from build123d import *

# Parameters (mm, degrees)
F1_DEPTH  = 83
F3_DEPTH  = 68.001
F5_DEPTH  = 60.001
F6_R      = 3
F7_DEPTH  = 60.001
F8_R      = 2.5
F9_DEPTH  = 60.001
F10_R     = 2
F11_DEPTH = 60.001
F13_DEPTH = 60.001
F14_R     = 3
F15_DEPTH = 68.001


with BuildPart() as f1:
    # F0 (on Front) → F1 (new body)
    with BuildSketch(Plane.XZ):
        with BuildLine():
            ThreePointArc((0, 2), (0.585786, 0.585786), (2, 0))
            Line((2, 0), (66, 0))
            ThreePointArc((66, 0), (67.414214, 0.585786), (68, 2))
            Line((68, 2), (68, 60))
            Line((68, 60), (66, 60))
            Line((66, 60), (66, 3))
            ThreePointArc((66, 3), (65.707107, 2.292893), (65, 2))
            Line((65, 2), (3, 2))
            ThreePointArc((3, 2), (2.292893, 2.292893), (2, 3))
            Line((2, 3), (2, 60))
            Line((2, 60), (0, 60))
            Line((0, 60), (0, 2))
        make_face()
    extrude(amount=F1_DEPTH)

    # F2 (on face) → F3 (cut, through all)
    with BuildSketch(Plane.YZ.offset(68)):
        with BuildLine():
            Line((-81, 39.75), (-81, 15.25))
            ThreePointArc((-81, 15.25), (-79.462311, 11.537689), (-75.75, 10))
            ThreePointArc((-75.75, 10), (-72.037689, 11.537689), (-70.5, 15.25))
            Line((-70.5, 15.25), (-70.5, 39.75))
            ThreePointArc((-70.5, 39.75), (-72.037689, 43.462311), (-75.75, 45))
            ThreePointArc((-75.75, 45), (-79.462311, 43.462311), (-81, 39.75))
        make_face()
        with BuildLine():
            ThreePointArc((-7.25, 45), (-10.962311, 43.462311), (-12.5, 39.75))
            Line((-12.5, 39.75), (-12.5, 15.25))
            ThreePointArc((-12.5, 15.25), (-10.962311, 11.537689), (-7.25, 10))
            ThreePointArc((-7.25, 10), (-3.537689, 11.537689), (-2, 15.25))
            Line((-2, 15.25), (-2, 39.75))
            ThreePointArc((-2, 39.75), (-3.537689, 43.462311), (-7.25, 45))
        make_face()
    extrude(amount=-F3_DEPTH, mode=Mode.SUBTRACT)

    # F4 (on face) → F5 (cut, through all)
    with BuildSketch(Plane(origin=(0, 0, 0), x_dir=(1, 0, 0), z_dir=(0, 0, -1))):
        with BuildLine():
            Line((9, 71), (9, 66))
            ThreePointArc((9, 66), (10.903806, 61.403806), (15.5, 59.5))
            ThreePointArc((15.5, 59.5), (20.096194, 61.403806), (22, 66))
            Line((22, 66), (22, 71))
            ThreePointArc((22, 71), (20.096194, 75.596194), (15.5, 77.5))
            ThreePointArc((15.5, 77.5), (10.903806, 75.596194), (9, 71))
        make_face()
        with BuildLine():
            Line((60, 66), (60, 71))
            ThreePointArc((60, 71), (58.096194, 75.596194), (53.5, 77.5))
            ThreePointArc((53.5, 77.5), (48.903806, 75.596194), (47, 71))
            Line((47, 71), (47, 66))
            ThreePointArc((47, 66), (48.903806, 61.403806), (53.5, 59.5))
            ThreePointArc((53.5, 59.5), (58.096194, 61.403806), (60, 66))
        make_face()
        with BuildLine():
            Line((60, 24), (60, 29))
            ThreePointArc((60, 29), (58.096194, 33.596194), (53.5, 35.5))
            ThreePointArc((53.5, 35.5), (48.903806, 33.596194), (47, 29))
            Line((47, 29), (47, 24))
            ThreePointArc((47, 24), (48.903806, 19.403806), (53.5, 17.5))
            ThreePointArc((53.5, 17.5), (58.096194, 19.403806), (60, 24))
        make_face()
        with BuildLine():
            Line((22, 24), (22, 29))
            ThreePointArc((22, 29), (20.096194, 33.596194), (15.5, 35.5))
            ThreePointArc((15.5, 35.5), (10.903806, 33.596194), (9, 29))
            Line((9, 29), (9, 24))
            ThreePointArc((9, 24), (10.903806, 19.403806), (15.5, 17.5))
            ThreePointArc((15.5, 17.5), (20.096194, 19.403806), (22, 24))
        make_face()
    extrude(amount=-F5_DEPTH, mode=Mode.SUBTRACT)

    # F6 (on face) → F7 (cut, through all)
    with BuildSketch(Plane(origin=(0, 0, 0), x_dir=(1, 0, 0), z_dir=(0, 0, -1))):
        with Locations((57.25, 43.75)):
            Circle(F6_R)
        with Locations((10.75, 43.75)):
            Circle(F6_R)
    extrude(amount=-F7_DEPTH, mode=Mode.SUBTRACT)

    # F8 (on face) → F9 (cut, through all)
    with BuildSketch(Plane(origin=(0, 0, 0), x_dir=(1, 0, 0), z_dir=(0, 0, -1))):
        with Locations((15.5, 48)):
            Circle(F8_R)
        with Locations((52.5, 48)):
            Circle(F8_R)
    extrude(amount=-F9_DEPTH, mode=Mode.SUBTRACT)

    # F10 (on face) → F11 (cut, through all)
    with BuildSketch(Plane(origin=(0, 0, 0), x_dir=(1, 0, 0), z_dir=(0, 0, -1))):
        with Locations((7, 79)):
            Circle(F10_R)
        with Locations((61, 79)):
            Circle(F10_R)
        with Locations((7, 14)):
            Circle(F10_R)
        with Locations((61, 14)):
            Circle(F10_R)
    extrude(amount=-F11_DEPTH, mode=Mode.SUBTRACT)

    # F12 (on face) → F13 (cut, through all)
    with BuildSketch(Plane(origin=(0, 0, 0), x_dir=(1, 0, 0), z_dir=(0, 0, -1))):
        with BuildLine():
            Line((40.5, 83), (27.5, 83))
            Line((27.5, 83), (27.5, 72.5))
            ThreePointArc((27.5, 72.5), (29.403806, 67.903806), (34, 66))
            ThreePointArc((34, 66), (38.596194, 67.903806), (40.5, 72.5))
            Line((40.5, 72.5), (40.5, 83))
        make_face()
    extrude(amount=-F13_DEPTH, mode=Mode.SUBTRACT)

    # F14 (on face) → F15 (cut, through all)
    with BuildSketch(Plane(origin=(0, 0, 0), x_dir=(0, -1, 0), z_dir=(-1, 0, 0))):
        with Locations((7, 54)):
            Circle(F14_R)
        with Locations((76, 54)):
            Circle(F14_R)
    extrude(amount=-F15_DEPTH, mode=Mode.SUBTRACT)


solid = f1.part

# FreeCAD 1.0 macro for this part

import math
import FreeCAD as App
import Part
import Sketcher
from FreeCAD import Vector

doc = App.newDocument("Part")
body = doc.addObject("PartDesign::Body", "Body")

sketch1 = body.newObject("Sketcher::SketchObject", "Sketch")
sketch1.AttachmentSupport = (doc.getObject("XZ_Plane"), [""])
sketch1.MapMode = "FlatFace"
sketch1.addGeometry([
    Part.ArcOfCircle(Part.Circle(Vector(2, 2, 0), Vector(0, 0, 1), 2), math.radians(180), math.radians(270)),
    Part.LineSegment(Vector(2, 0, 0), Vector(66, 0, 0)),
    Part.ArcOfCircle(Part.Circle(Vector(66, 2, 0), Vector(0, 0, 1), 2), math.radians(-90), math.radians(0)),
    Part.LineSegment(Vector(68, 2, 0), Vector(68, 60, 0)),
    Part.LineSegment(Vector(68, 60, 0), Vector(66, 60, 0)),
    Part.LineSegment(Vector(66, 60, 0), Vector(66, 3, 0)),
    Part.ArcOfCircle(Part.Circle(Vector(65, 3, 0), Vector(0, 0, 1), 1), math.radians(-90), math.radians(0)),
    Part.LineSegment(Vector(65, 2, 0), Vector(3, 2, 0)),
    Part.ArcOfCircle(Part.Circle(Vector(3, 3, 0), Vector(0, 0, 1), 1), math.radians(180), math.radians(270)),
    Part.LineSegment(Vector(2, 3, 0), Vector(2, 60, 0)),
    Part.LineSegment(Vector(2, 60, 0), Vector(0, 60, 0)),
    Part.LineSegment(Vector(0, 60, 0), Vector(0, 2, 0)),
], False)
sketch1.addConstraint([
    Sketcher.Constraint("Tangent", 0, 2, 1, 1),
    Sketcher.Constraint("Tangent", 1, 2, 2, 1),
    Sketcher.Constraint("Tangent", 2, 2, 3, 1),
    Sketcher.Constraint("Coincident", 3, 2, 4, 1),
    Sketcher.Constraint("Coincident", 4, 2, 5, 1),
    Sketcher.Constraint("Tangent", 5, 2, 6, 2),
    Sketcher.Constraint("Tangent", 6, 1, 7, 1),
    Sketcher.Constraint("Tangent", 7, 2, 8, 2),
    Sketcher.Constraint("Tangent", 8, 1, 9, 1),
    Sketcher.Constraint("Coincident", 9, 2, 10, 1),
    Sketcher.Constraint("Coincident", 10, 2, 11, 1),
    Sketcher.Constraint("Tangent", 11, 2, 0, 1),
    Sketcher.Constraint("Horizontal", 1),
    Sketcher.Constraint("Vertical", 3),
    Sketcher.Constraint("Horizontal", 4),
    Sketcher.Constraint("Vertical", 5),
    Sketcher.Constraint("Horizontal", 7),
    Sketcher.Constraint("Vertical", 9),
    Sketcher.Constraint("Horizontal", 10),
    Sketcher.Constraint("Vertical", 11),
    Sketcher.Constraint("Equal", 0, 2),
    Sketcher.Constraint("Equal", 6, 8),
    Sketcher.Constraint("PointOnObject", 0, 2, -1),
    Sketcher.Constraint("PointOnObject", 10, 2, -2),
    Sketcher.Constraint("Horizontal", 2, 2, 6, 1),
    Sketcher.Constraint("Horizontal", 4, 2, 9, 2),
    Sketcher.Constraint("Vertical", 1, 2, 4, 2),
    Sketcher.Constraint("Vertical", 0, 2, 8, 1),
    Sketcher.Constraint("Radius", 0, 1.999999),
    Sketcher.Constraint("Radius", 6, 0.999999),
    Sketcher.Constraint("DistanceX", 1, 1, 1, 2, 64.0),
    Sketcher.Constraint("DistanceY", 3, 1, 3, 2, 58.0),
])
pad1 = body.newObject("PartDesign::Pad", "Pad")
pad1.Profile = sketch1
pad1.Length = 83

sketch2 = body.newObject("Sketcher::SketchObject", "Sketch001")
sketch2.AttachmentSupport = (doc.getObject("YZ_Plane"), [""])
sketch2.MapMode = "FlatFace"
sketch2.AttachmentOffset = App.Placement(Vector(0, 0, 68), App.Rotation())
sketch2.addGeometry([
    Part.LineSegment(Vector(-81, 40, 0), Vector(-81, 15, 0)),
    Part.ArcOfCircle(Part.Circle(Vector(-76, 15, 0), Vector(0, 0, 1), 5), math.radians(180), math.radians(270)),
    Part.ArcOfCircle(Part.Circle(Vector(-76, 15, 0), Vector(0, 0, 1), 5), math.radians(-90), math.radians(0)),
    Part.LineSegment(Vector(-70, 15, 0), Vector(-70, 40, 0)),
    Part.ArcOfCircle(Part.Circle(Vector(-76, 40, 0), Vector(0, 0, 1), 5), math.radians(0), math.radians(90)),
    Part.ArcOfCircle(Part.Circle(Vector(-76, 40, 0), Vector(0, 0, 1), 5), math.radians(90), math.radians(180)),
    Part.ArcOfCircle(Part.Circle(Vector(-7, 40, 0), Vector(0, 0, 1), 5), math.radians(90), math.radians(180)),
    Part.LineSegment(Vector(-12, 40, 0), Vector(-12, 15, 0)),
    Part.ArcOfCircle(Part.Circle(Vector(-7, 15, 0), Vector(0, 0, 1), 5), math.radians(180), math.radians(270)),
    Part.ArcOfCircle(Part.Circle(Vector(-7, 15, 0), Vector(0, 0, 1), 5), math.radians(-90), math.radians(0)),
    Part.LineSegment(Vector(-2, 15, 0), Vector(-2, 40, 0)),
    Part.ArcOfCircle(Part.Circle(Vector(-7, 40, 0), Vector(0, 0, 1), 5), math.radians(0), math.radians(90)),
], False)
sketch2.addConstraint([
    Sketcher.Constraint("Tangent", 0, 2, 1, 1),
    Sketcher.Constraint("Tangent", 1, 2, 2, 1),
    Sketcher.Constraint("Tangent", 2, 2, 3, 1),
    Sketcher.Constraint("Tangent", 3, 2, 4, 1),
    Sketcher.Constraint("Tangent", 4, 2, 5, 1),
    Sketcher.Constraint("Tangent", 5, 2, 0, 1),
    Sketcher.Constraint("Tangent", 6, 2, 7, 1),
    Sketcher.Constraint("Tangent", 7, 2, 8, 1),
    Sketcher.Constraint("Tangent", 8, 2, 9, 1),
    Sketcher.Constraint("Tangent", 9, 2, 10, 1),
    Sketcher.Constraint("Tangent", 10, 2, 11, 1),
    Sketcher.Constraint("Tangent", 11, 2, 6, 1),
    Sketcher.Constraint("Vertical", 0),
    Sketcher.Constraint("Vertical", 3),
    Sketcher.Constraint("Vertical", 7),
    Sketcher.Constraint("Vertical", 10),
    Sketcher.Constraint("Equal", 1, 2),
    Sketcher.Constraint("Equal", 2, 4),
    Sketcher.Constraint("Equal", 5, 6),
    Sketcher.Constraint("Equal", 6, 8),
    Sketcher.Constraint("Equal", 8, 9),
    Sketcher.Constraint("Horizontal", 5, 3, 6, 3),
    Sketcher.Constraint("Horizontal", 2, 3, 8, 3),
    Sketcher.Constraint("Vertical", 5, 3, 1, 2),
    Sketcher.Constraint("Vertical", 1, 2, 4, 2),
    Sketcher.Constraint("Vertical", 11, 3, 8, 2),
    Sketcher.Constraint("Vertical", 8, 2, 11, 2),
    Sketcher.Constraint("Radius", 1, 5.249999),
    Sketcher.Constraint("DistanceY", 0, 2, 0, 1, 24.5),
    Sketcher.Constraint("DistanceX", 0, 2, -1, 1, 81.0),
    Sketcher.Constraint("DistanceY", -1, 1, 1, 2, 10.0),
    Sketcher.Constraint("DistanceX", 9, 2, -1, 1, 2.0),
])
pocket1 = body.newObject("PartDesign::Pocket", "Pocket")
pocket1.Profile = sketch2
pocket1.Type = "ThroughAll"

sketch3 = body.newObject("Sketcher::SketchObject", "Sketch002")
sketch3.AttachmentSupport = (doc.getObject("XY_Plane"), [""])
sketch3.MapMode = "FlatFace"
sketch3.addGeometry([
    Part.LineSegment(Vector(9, -71, 0), Vector(9, -66, 0)),
    Part.ArcOfCircle(Part.Circle(Vector(16, -66, 0), Vector(0, 0, 1), 7), math.radians(90), math.radians(180)),
    Part.ArcOfCircle(Part.Circle(Vector(15, -66, 0), Vector(0, 0, 1), 7), math.radians(0), math.radians(90)),
    Part.LineSegment(Vector(22, -66, 0), Vector(22, -71, 0)),
    Part.ArcOfCircle(Part.Circle(Vector(15, -71, 0), Vector(0, 0, 1), 7), math.radians(-90), math.radians(0)),
    Part.ArcOfCircle(Part.Circle(Vector(16, -71, 0), Vector(0, 0, 1), 7), math.radians(-180), math.radians(-90)),
    Part.LineSegment(Vector(60, -66, 0), Vector(60, -71, 0)),
    Part.ArcOfCircle(Part.Circle(Vector(53, -71, 0), Vector(0, 0, 1), 7), math.radians(-90), math.radians(0)),
    Part.ArcOfCircle(Part.Circle(Vector(54, -71, 0), Vector(0, 0, 1), 7), math.radians(-180), math.radians(-90)),
    Part.LineSegment(Vector(47, -71, 0), Vector(47, -66, 0)),
    Part.ArcOfCircle(Part.Circle(Vector(54, -66, 0), Vector(0, 0, 1), 7), math.radians(90), math.radians(180)),
    Part.ArcOfCircle(Part.Circle(Vector(53, -66, 0), Vector(0, 0, 1), 7), math.radians(0), math.radians(90)),
    Part.LineSegment(Vector(60, -24, 0), Vector(60, -29, 0)),
    Part.ArcOfCircle(Part.Circle(Vector(53, -29, 0), Vector(0, 0, 1), 7), math.radians(-90), math.radians(0)),
    Part.ArcOfCircle(Part.Circle(Vector(54, -29, 0), Vector(0, 0, 1), 7), math.radians(-180), math.radians(-90)),
    Part.LineSegment(Vector(47, -29, 0), Vector(47, -24, 0)),
    Part.ArcOfCircle(Part.Circle(Vector(54, -24, 0), Vector(0, 0, 1), 7), math.radians(90), math.radians(180)),
    Part.ArcOfCircle(Part.Circle(Vector(53, -24, 0), Vector(0, 0, 1), 7), math.radians(0), math.radians(90)),
    Part.LineSegment(Vector(22, -24, 0), Vector(22, -29, 0)),
    Part.ArcOfCircle(Part.Circle(Vector(15, -29, 0), Vector(0, 0, 1), 7), math.radians(-90), math.radians(0)),
    Part.ArcOfCircle(Part.Circle(Vector(16, -29, 0), Vector(0, 0, 1), 7), math.radians(-180), math.radians(-90)),
    Part.LineSegment(Vector(9, -29, 0), Vector(9, -24, 0)),
    Part.ArcOfCircle(Part.Circle(Vector(16, -24, 0), Vector(0, 0, 1), 7), math.radians(90), math.radians(180)),
    Part.ArcOfCircle(Part.Circle(Vector(15, -24, 0), Vector(0, 0, 1), 7), math.radians(0), math.radians(90)),
], False)
sketch3.addConstraint([
    Sketcher.Constraint("Tangent", 0, 2, 1, 2),
    Sketcher.Constraint("Tangent", 1, 1, 2, 2),
    Sketcher.Constraint("Tangent", 2, 1, 3, 1),
    Sketcher.Constraint("Tangent", 3, 2, 4, 2),
    Sketcher.Constraint("Tangent", 4, 1, 5, 2),
    Sketcher.Constraint("Tangent", 5, 1, 0, 1),
    Sketcher.Constraint("Tangent", 6, 2, 7, 2),
    Sketcher.Constraint("Tangent", 7, 1, 8, 2),
    Sketcher.Constraint("Tangent", 8, 1, 9, 1),
    Sketcher.Constraint("Tangent", 9, 2, 10, 2),
    Sketcher.Constraint("Tangent", 10, 1, 11, 2),
    Sketcher.Constraint("Tangent", 11, 1, 6, 1),
    Sketcher.Constraint("Tangent", 12, 2, 13, 2),
    Sketcher.Constraint("Tangent", 13, 1, 14, 2),
    Sketcher.Constraint("Tangent", 14, 1, 15, 1),
    Sketcher.Constraint("Tangent", 15, 2, 16, 2),
    Sketcher.Constraint("Tangent", 16, 1, 17, 2),
    Sketcher.Constraint("Tangent", 17, 1, 12, 1),
    Sketcher.Constraint("Tangent", 18, 2, 19, 2),
    Sketcher.Constraint("Tangent", 19, 1, 20, 2),
    Sketcher.Constraint("Tangent", 20, 1, 21, 1),
    Sketcher.Constraint("Tangent", 21, 2, 22, 2),
    Sketcher.Constraint("Tangent", 22, 1, 23, 2),
    Sketcher.Constraint("Tangent", 23, 1, 18, 1),
    Sketcher.Constraint("Vertical", 0),
    Sketcher.Constraint("Vertical", 3),
    Sketcher.Constraint("Vertical", 6),
    Sketcher.Constraint("Vertical", 9),
    Sketcher.Constraint("Vertical", 12),
    Sketcher.Constraint("Vertical", 15),
    Sketcher.Constraint("Vertical", 18),
    Sketcher.Constraint("Vertical", 21),
    Sketcher.Constraint("Equal", 1, 2),
    Sketcher.Constraint("Equal", 2, 4),
    Sketcher.Constraint("Equal", 5, 7),
    Sketcher.Constraint("Equal", 7, 8),
    Sketcher.Constraint("Equal", 8, 10),
    Sketcher.Constraint("Equal", 11, 13),
    Sketcher.Constraint("Equal", 13, 14),
    Sketcher.Constraint("Equal", 14, 16),
    Sketcher.Constraint("Equal", 17, 19),
    Sketcher.Constraint("Equal", 19, 20),
    Sketcher.Constraint("Equal", 20, 22),
    Sketcher.Constraint("Horizontal", 5, 3, 7, 3),
    Sketcher.Constraint("Horizontal", 2, 3, 10, 3),
    Sketcher.Constraint("Horizontal", 14, 3, 19, 3),
    Sketcher.Constraint("Horizontal", 17, 3, 22, 3),
    Sketcher.Constraint("Vertical", 11, 3, 13, 3),
    Sketcher.Constraint("Vertical", 5, 3, 19, 3),
    Sketcher.Constraint("Vertical", 23, 3, 1, 1),
    Sketcher.Constraint("Vertical", 1, 1, 4, 1),
    Sketcher.Constraint("Vertical", 17, 3, 7, 1),
    Sketcher.Constraint("Vertical", 7, 1, 10, 1),
    Sketcher.Constraint("Vertical", 10, 1, 13, 1),
    Sketcher.Constraint("Vertical", 13, 1, 16, 1),
    Sketcher.Constraint("Vertical", 4, 1, 19, 1),
    Sketcher.Constraint("Vertical", 19, 1, 22, 1),
    Sketcher.Constraint("Equal", 9, 12),
    Sketcher.Constraint("Radius", 1, 6.5),
    Sketcher.Constraint("DistanceY", 0, 1, 0, 2, 5.0),
    Sketcher.Constraint("DistanceY", 1, 3, -1, 1, 66.0),
    Sketcher.Constraint("DistanceY", 13, 3, -1, 1, 29.0),
    Sketcher.Constraint("DistanceX", -1, 1, 0, 2, 9.0),
    Sketcher.Constraint("DistanceX", -1, 1, 6, 2, 60.0),
])
pocket2 = body.newObject("PartDesign::Pocket", "Pocket001")
pocket2.Profile = sketch3
pocket2.Type = "ThroughAll"
pocket2.Reversed = True

sketch4 = body.newObject("Sketcher::SketchObject", "Sketch003")
sketch4.AttachmentSupport = (doc.getObject("XY_Plane"), [""])
sketch4.MapMode = "FlatFace"
sketch4.addGeometry([
    Part.Circle(Vector(57.2, -43.8, 0), Vector(0, 0, 1), 3),
    Part.Circle(Vector(10.8, -43.8, 0), Vector(0, 0, 1), 3),
], False)
sketch4.addConstraint([
    Sketcher.Constraint("Equal", 0, 1),
    Sketcher.Constraint("Horizontal", 0, 3, 1, 3),
    Sketcher.Constraint("Diameter", 0, 6.0),
    Sketcher.Constraint("DistanceX", 1, 3, 0, 3, 46.5),
    Sketcher.Constraint("DistanceX", -1, 1, 0, 3, 57.25),
    Sketcher.Constraint("DistanceY", 0, 3, -1, 1, 43.75),
])
pocket3 = body.newObject("PartDesign::Pocket", "Pocket002")
pocket3.Profile = sketch4
pocket3.Type = "ThroughAll"
pocket3.Reversed = True

sketch5 = body.newObject("Sketcher::SketchObject", "Sketch004")
sketch5.AttachmentSupport = (doc.getObject("XY_Plane"), [""])
sketch5.MapMode = "FlatFace"
sketch5.addGeometry([
    Part.Circle(Vector(15.5, -48, 0), Vector(0, 0, 1), 2.5),
    Part.Circle(Vector(52.5, -48, 0), Vector(0, 0, 1), 2.5),
], False)
sketch5.addConstraint([
    Sketcher.Constraint("Equal", 0, 1),
    Sketcher.Constraint("Horizontal", 0, 3, 1, 3),
    Sketcher.Constraint("Diameter", 0, 5.0),
    Sketcher.Constraint("DistanceY", 0, 3, -1, 1, 48.0),
    Sketcher.Constraint("DistanceX", 0, 3, 1, 3, 37.0),
    Sketcher.Constraint("DistanceX", -1, 1, 0, 3, 15.5),
])
pocket4 = body.newObject("PartDesign::Pocket", "Pocket003")
pocket4.Profile = sketch5
pocket4.Type = "ThroughAll"
pocket4.Reversed = True

sketch6 = body.newObject("Sketcher::SketchObject", "Sketch005")
sketch6.AttachmentSupport = (doc.getObject("XY_Plane"), [""])
sketch6.MapMode = "FlatFace"
sketch6.addGeometry([
    Part.Circle(Vector(7, -79, 0), Vector(0, 0, 1), 2),
    Part.Circle(Vector(61, -79, 0), Vector(0, 0, 1), 2),
    Part.Circle(Vector(7, -14, 0), Vector(0, 0, 1), 2),
    Part.Circle(Vector(61, -14, 0), Vector(0, 0, 1), 2),
], False)
sketch6.addConstraint([
    Sketcher.Constraint("Equal", 0, 1),
    Sketcher.Constraint("Equal", 1, 2),
    Sketcher.Constraint("Equal", 2, 3),
    Sketcher.Constraint("Horizontal", 0, 3, 1, 3),
    Sketcher.Constraint("Horizontal", 2, 3, 3, 3),
    Sketcher.Constraint("Vertical", 0, 3, 2, 3),
    Sketcher.Constraint("Vertical", 1, 3, 3, 3),
    Sketcher.Constraint("Diameter", 0, 4.0),
    Sketcher.Constraint("DistanceX", -1, 1, 0, 3, 7.0),
    Sketcher.Constraint("DistanceY", 0, 3, -1, 1, 79.0),
    Sketcher.Constraint("DistanceX", -1, 1, 1, 3, 61.0),
    Sketcher.Constraint("DistanceY", 2, 3, -1, 1, 14.0),
])
pocket5 = body.newObject("PartDesign::Pocket", "Pocket004")
pocket5.Profile = sketch6
pocket5.Type = "ThroughAll"
pocket5.Reversed = True

sketch7 = body.newObject("Sketcher::SketchObject", "Sketch006")
sketch7.AttachmentSupport = (doc.getObject("XY_Plane"), [""])
sketch7.MapMode = "FlatFace"
sketch7.addGeometry([
    Part.LineSegment(Vector(40, -83, 0), Vector(28, -83, 0)),
    Part.LineSegment(Vector(28, -83, 0), Vector(28, -72, 0)),
    Part.ArcOfCircle(Part.Circle(Vector(34, -73, 0), Vector(0, 0, 1), 7), math.radians(90), math.radians(180)),
    Part.ArcOfCircle(Part.Circle(Vector(34, -73, 0), Vector(0, 0, 1), 7), math.radians(0), math.radians(90)),
    Part.LineSegment(Vector(40, -72, 0), Vector(40, -83, 0)),
], False)
sketch7.addConstraint([
    Sketcher.Constraint("Coincident", 0, 2, 1, 1),
    Sketcher.Constraint("Tangent", 1, 2, 2, 2),
    Sketcher.Constraint("Tangent", 2, 1, 3, 2),
    Sketcher.Constraint("Tangent", 3, 1, 4, 1),
    Sketcher.Constraint("Coincident", 4, 2, 0, 1),
    Sketcher.Constraint("Horizontal", 0),
    Sketcher.Constraint("Vertical", 1),
    Sketcher.Constraint("Vertical", 4),
    Sketcher.Constraint("Equal", 2, 3),
    Sketcher.Constraint("Vertical", 3, 3, 2, 1),
    Sketcher.Constraint("Radius", 2, 6.5),
    Sketcher.Constraint("DistanceY", 1, 1, 1, 2, 10.5),
    Sketcher.Constraint("DistanceX", -1, 1, 2, 3, 34.0),
    Sketcher.Constraint("DistanceY", 0, 2, -1, 1, 83.0),
])
pocket6 = body.newObject("PartDesign::Pocket", "Pocket005")
pocket6.Profile = sketch7
pocket6.Type = "ThroughAll"
pocket6.Reversed = True

sketch8 = body.newObject("Sketcher::SketchObject", "Sketch007")
sketch8.AttachmentSupport = (doc.getObject("YZ_Plane"), [""])
sketch8.MapMode = "FlatFace"
sketch8.addGeometry([
    Part.Circle(Vector(-7, 54, 0), Vector(0, 0, 1), 3),
    Part.Circle(Vector(-76, 54, 0), Vector(0, 0, 1), 3),
], False)
sketch8.addConstraint([
    Sketcher.Constraint("Equal", 0, 1),
    Sketcher.Constraint("Horizontal", 0, 3, 1, 3),
    Sketcher.Constraint("Diameter", 0, 6.0),
    Sketcher.Constraint("DistanceX", 0, 3, -1, 1, 7.0),
    Sketcher.Constraint("DistanceY", -1, 1, 0, 3, 54.0),
    Sketcher.Constraint("DistanceX", 1, 3, -1, 1, 76.0),
])
pocket7 = body.newObject("PartDesign::Pocket", "Pocket006")
pocket7.Profile = sketch8
pocket7.Type = "ThroughAll"
pocket7.Reversed = True

doc.recompute()
